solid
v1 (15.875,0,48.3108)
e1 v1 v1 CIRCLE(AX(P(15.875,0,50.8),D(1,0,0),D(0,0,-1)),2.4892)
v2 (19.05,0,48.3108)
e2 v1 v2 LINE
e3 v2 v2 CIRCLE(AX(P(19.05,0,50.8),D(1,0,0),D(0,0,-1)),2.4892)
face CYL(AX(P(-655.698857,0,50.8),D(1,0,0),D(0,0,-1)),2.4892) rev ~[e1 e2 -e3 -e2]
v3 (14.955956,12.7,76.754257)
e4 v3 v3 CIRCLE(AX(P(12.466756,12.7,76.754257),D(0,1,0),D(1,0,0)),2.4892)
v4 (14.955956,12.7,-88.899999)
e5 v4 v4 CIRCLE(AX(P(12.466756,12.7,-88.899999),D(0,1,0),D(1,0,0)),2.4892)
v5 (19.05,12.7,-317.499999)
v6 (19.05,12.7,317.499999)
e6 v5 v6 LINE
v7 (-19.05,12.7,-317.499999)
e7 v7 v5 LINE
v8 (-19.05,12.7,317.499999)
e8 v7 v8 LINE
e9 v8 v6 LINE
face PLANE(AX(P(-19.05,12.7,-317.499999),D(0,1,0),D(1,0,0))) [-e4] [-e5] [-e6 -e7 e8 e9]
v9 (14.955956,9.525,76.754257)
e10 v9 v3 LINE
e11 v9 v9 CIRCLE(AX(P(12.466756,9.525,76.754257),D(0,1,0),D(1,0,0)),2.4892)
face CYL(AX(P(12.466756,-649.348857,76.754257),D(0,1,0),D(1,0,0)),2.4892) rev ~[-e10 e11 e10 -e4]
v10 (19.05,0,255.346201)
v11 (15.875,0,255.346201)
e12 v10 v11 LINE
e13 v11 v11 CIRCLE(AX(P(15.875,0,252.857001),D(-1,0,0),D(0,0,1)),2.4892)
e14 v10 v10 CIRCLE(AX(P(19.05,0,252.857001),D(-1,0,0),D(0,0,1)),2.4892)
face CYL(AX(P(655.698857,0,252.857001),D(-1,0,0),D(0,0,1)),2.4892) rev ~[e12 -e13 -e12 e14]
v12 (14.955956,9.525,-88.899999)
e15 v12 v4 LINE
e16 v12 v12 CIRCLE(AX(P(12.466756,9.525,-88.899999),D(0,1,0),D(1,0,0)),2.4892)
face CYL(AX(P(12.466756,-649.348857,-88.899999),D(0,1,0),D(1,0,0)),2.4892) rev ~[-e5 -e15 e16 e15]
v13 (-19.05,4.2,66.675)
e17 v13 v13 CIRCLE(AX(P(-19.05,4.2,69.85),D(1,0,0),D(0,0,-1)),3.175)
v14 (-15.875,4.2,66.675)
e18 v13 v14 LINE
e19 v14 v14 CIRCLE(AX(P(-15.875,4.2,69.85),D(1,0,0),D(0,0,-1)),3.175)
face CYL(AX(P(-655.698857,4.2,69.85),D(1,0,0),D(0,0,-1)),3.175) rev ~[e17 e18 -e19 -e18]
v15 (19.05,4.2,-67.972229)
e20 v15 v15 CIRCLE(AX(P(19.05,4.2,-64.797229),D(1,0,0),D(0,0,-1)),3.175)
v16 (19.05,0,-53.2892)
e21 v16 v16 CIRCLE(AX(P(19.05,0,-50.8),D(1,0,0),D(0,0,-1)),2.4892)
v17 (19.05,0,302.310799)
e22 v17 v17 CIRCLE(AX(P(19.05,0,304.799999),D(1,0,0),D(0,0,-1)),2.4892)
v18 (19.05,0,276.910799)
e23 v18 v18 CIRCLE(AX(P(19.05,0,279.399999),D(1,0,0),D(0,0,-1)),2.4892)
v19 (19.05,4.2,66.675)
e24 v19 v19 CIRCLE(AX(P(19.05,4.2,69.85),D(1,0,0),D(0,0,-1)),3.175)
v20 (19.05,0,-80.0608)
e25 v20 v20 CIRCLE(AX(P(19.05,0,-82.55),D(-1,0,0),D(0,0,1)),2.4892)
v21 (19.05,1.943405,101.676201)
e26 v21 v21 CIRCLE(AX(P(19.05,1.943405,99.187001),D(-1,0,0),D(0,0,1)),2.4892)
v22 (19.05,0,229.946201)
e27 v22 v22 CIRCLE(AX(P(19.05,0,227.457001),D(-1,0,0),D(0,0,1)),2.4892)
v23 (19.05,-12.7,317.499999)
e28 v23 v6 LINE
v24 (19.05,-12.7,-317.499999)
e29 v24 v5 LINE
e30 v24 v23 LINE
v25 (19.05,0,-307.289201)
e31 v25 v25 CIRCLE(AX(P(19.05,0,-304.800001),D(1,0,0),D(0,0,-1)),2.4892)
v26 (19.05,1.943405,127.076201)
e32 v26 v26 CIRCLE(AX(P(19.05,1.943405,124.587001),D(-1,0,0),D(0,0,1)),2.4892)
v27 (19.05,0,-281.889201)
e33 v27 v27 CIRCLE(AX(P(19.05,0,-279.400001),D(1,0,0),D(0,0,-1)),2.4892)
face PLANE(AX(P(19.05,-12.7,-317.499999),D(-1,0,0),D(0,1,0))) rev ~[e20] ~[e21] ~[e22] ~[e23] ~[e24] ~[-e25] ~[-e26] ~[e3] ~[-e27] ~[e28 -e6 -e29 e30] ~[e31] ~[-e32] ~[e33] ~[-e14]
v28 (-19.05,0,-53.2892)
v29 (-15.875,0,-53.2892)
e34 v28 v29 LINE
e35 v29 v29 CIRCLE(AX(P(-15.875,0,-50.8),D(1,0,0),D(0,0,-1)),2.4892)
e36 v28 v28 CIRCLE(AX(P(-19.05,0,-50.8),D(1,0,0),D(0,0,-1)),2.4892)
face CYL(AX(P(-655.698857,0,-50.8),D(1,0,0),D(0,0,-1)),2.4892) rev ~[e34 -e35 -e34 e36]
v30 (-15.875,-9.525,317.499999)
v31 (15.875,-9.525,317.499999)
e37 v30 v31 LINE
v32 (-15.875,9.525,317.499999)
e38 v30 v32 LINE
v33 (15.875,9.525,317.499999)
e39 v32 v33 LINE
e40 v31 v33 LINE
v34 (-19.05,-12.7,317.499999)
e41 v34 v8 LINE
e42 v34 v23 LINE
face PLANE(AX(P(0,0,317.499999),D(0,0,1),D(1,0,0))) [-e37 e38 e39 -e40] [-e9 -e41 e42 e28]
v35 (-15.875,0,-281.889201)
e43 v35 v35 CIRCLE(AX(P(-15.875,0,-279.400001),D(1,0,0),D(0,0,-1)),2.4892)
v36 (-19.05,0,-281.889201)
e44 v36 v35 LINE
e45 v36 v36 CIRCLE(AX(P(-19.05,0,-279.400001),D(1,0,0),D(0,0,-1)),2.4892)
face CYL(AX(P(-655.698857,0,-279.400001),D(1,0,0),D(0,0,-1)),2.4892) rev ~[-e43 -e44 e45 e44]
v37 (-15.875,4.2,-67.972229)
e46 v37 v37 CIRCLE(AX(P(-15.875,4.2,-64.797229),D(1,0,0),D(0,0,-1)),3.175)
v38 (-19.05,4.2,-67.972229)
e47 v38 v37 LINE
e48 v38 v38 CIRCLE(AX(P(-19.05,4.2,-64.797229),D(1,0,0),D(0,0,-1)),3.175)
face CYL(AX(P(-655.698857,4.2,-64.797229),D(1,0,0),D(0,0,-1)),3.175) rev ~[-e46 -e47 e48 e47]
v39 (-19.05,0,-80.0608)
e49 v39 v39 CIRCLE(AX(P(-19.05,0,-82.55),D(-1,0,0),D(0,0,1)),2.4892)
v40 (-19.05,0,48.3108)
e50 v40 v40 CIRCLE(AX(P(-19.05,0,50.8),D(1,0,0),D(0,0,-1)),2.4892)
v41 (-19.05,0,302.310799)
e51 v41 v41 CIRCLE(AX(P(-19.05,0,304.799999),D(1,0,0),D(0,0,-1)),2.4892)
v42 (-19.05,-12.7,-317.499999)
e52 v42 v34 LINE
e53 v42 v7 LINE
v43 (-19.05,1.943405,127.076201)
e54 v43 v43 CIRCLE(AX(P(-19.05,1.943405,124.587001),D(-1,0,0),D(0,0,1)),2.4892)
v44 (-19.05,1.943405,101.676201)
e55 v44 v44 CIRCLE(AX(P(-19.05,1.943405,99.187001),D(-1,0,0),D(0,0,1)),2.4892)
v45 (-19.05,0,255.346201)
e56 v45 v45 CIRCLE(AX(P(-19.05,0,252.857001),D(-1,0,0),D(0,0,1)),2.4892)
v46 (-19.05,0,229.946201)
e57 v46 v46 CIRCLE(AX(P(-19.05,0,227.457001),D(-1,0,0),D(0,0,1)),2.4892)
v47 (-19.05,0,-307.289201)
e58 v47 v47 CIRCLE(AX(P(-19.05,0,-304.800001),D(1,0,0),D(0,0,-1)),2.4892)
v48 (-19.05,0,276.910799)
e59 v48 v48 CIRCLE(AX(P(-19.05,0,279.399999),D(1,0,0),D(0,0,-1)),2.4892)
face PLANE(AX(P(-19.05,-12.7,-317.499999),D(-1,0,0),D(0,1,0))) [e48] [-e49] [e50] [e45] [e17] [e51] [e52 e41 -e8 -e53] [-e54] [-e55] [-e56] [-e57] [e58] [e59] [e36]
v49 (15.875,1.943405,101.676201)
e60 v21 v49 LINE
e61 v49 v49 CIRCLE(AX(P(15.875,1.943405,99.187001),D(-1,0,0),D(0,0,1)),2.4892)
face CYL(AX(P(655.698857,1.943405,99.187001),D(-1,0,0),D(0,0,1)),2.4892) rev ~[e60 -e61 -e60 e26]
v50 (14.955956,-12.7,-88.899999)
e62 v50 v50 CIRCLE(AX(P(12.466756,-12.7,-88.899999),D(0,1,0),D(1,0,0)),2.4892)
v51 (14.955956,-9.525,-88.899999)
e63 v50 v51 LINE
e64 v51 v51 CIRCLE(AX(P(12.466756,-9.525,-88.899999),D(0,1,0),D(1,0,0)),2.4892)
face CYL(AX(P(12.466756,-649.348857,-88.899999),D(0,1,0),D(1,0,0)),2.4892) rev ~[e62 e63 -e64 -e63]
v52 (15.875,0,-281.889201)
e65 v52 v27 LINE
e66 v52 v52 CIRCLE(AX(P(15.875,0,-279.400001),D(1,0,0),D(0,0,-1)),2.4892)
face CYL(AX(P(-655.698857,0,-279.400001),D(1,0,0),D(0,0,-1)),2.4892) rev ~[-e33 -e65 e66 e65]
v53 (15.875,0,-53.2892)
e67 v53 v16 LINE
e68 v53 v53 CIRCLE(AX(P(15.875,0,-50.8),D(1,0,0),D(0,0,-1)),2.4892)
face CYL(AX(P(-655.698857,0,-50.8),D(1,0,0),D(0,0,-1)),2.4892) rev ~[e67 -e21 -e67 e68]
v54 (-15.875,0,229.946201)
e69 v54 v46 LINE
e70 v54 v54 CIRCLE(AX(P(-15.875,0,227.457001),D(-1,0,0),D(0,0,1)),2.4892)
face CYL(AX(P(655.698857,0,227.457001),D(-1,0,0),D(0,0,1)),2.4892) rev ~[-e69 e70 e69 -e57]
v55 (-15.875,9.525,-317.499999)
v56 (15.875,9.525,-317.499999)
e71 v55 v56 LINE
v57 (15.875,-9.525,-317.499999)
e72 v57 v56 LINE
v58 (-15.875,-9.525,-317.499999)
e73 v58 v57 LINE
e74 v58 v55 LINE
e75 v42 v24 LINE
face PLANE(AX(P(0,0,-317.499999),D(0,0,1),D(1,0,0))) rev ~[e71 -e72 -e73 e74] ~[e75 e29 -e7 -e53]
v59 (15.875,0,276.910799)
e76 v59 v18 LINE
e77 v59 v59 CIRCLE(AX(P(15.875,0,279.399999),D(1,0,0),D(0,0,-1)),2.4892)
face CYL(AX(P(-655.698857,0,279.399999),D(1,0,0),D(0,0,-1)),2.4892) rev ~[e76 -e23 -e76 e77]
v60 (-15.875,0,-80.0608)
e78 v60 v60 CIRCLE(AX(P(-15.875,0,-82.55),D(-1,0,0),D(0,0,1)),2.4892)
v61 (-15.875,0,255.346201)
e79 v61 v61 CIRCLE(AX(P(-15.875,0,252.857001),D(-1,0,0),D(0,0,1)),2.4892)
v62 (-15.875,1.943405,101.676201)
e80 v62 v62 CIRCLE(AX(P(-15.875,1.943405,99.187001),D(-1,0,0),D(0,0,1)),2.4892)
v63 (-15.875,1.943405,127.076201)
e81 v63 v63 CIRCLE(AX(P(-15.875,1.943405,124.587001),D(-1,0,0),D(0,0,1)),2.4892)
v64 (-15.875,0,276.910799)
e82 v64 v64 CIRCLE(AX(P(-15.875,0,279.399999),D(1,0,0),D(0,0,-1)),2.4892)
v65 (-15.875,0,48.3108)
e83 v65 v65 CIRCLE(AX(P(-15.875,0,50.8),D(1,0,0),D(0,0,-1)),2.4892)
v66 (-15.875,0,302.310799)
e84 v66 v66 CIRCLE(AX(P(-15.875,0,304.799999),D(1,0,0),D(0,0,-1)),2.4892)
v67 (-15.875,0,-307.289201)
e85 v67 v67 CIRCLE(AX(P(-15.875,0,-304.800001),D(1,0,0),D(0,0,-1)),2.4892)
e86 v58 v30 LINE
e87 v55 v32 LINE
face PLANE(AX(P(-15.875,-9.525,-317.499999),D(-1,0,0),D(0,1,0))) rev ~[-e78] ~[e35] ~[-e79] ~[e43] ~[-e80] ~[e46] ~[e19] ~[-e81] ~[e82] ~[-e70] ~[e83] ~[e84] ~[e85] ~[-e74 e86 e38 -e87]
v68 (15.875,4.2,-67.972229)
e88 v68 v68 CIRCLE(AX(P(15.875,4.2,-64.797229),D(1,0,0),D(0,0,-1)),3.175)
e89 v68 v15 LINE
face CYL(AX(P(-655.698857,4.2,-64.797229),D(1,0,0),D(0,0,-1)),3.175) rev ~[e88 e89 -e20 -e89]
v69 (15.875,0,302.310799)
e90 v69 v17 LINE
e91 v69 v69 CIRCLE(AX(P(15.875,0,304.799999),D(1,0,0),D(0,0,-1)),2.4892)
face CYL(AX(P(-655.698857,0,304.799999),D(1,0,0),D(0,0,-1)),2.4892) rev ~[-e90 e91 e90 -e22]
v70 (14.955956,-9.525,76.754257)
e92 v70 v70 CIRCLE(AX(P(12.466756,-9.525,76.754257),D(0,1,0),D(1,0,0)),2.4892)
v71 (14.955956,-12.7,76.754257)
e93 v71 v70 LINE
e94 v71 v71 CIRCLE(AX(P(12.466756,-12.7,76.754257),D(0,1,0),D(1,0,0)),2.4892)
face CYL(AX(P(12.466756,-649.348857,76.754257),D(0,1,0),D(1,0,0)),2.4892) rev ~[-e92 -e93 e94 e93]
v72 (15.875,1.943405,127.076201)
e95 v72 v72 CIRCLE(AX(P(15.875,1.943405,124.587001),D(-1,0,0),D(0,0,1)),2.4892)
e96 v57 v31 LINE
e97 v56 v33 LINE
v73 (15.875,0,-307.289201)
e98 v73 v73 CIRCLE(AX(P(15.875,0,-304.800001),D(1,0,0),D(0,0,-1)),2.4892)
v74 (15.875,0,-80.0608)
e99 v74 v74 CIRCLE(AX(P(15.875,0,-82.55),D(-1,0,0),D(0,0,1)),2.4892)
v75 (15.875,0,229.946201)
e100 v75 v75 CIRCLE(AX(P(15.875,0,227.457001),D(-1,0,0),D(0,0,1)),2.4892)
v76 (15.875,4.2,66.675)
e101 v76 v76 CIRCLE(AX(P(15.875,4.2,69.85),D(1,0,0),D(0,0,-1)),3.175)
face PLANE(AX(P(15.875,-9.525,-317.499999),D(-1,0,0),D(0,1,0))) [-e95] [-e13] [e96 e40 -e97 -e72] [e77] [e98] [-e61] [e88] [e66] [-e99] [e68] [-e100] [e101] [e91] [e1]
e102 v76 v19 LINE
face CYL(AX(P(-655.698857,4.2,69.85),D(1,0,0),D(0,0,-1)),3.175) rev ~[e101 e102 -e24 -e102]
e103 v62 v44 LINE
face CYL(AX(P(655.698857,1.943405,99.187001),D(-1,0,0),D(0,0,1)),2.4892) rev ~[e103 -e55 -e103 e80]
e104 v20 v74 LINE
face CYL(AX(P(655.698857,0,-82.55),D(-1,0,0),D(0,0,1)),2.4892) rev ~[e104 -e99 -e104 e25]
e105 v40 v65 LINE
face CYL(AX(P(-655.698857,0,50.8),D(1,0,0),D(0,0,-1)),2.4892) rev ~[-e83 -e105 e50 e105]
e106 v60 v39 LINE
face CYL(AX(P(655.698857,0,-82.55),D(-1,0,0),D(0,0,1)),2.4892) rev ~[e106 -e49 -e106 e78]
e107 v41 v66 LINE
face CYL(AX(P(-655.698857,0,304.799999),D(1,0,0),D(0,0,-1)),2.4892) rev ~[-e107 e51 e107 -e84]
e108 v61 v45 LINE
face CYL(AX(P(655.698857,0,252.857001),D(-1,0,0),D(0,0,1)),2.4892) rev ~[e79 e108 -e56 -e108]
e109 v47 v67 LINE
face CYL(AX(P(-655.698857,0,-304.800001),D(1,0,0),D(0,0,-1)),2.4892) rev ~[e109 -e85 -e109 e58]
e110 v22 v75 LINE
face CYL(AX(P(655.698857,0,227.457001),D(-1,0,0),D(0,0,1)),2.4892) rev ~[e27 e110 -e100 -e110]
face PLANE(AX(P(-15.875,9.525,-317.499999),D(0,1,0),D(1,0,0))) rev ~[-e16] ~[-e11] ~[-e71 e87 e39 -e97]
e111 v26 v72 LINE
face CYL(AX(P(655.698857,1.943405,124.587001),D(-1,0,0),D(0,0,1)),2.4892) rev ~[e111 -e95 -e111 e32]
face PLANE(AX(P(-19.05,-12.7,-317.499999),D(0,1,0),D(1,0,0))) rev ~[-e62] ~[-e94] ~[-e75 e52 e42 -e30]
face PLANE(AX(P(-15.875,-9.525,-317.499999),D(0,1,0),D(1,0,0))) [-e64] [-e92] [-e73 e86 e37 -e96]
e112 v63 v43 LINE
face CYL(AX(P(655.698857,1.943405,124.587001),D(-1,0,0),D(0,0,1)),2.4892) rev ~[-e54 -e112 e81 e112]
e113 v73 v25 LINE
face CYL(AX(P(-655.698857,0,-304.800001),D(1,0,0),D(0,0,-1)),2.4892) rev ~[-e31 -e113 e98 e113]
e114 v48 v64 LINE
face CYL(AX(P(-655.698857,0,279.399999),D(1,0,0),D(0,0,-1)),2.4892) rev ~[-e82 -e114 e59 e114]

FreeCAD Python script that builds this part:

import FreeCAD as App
import Part
import Sketcher
Q = App.Units.Quantity

doc = App.newDocument("Part")
body = doc.addObject("PartDesign::Body", "Body")

sketch1 = body.newObject("Sketcher::SketchObject", "Sketch")
sketch1.AttachmentSupport = (doc.getObject("XY_Plane"), [""])
sketch1.MapMode = "FlatFace"
sketch1.addGeometry([
    Part.LineSegment(App.Vector(-19.05, 12.7, 0), App.Vector(-19.05, -12.7, 0)),
    Part.LineSegment(App.Vector(-19.05, -12.7, 0), App.Vector(19.05, -12.7, 0)),
    Part.LineSegment(App.Vector(19.05, -12.7, 0), App.Vector(19.05, 12.7, 0)),
    Part.LineSegment(App.Vector(19.05, 12.7, 0), App.Vector(-19.05, 12.7, 0)),
    Part.LineSegment(App.Vector(15.875, -9.525, 0), App.Vector(-15.875, -9.525, 0)),
    Part.LineSegment(App.Vector(-15.875, -9.525, 0), App.Vector(-15.875, 9.525, 0)),
    Part.LineSegment(App.Vector(-15.875, 9.525, 0), App.Vector(15.875, 9.525, 0)),
    Part.LineSegment(App.Vector(15.875, 9.525, 0), App.Vector(15.875, -9.525, 0)),
], False)
sketch1.addConstraint([
    Sketcher.Constraint("Coincident", 0, 2, 1, 1),
    Sketcher.Constraint("Coincident", 1, 2, 2, 1),
    Sketcher.Constraint("Coincident", 2, 2, 3, 1),
    Sketcher.Constraint("Coincident", 3, 2, 0, 1),
    Sketcher.Constraint("Coincident", 4, 2, 5, 1),
    Sketcher.Constraint("Coincident", 5, 2, 6, 1),
    Sketcher.Constraint("Coincident", 6, 2, 7, 1),
    Sketcher.Constraint("Coincident", 7, 2, 4, 1),
    Sketcher.Constraint("Vertical", 0),
    Sketcher.Constraint("Horizontal", 1),
    Sketcher.Constraint("Vertical", 2),
    Sketcher.Constraint("Horizontal", 3),
    Sketcher.Constraint("Horizontal", 4),
    Sketcher.Constraint("Vertical", 5),
    Sketcher.Constraint("Horizontal", 6),
    Sketcher.Constraint("Vertical", 7),
    Sketcher.Constraint("Symmetric", 0, 2, 2, 2, -1, 1),
    Sketcher.Constraint("Symmetric", 4, 2, 6, 2, -1, 1),
    Sketcher.Constraint("DistanceY", 0, 2, 0, 1, Q("1 in")),
    Sketcher.Constraint("DistanceX", 1, 1, 1, 2, Q("1.5 in")),
    Sketcher.Constraint("DistanceX", 4, 2, 4, 1, Q("1.25 in")),
    Sketcher.Constraint("DistanceY", 5, 1, 5, 2, Q("0.75 in")),
])
pad1 = body.newObject("PartDesign::Pad", "Pad")
pad1.Profile = sketch1
pad1.Type = "TwoLengths"
pad1.Length = Q("12.5 in")
pad1.Length2 = Q("12.5 in")

sketch2 = body.newObject("Sketcher::SketchObject", "Sketch001")
sketch2.AttachmentSupport = (doc.getObject("YZ_Plane"), [""])
sketch2.MapMode = "FlatFace"
sketch2.AttachmentOffset = App.Placement(App.Vector(0, 0, -0.75 * 25.4), App.Rotation())
sketch2.addGeometry([
    Part.Circle(App.Vector(0, -304.800001, 0), App.Vector(0, 0, 1), 2.4892),
    Part.Circle(App.Vector(0, -279.400001, 0), App.Vector(0, 0, 1), 2.4892),
    Part.Circle(App.Vector(0, 279.399999, 0), App.Vector(0, 0, 1), 2.4892),
    Part.Circle(App.Vector(0, 304.799999, 0), App.Vector(0, 0, 1), 2.4892),
], False)
sketch2.addConstraint([
    Sketcher.Constraint("Equal", 0, 1),
    Sketcher.Constraint("Equal", 1, 2),
    Sketcher.Constraint("Equal", 2, 3),
    Sketcher.Constraint("Symmetric", 1, 3, 2, 3, -1, 1),
    Sketcher.Constraint("Symmetric", 0, 3, 3, 3, -1, 1),
    Sketcher.Constraint("PointOnObject", 0, 3, -2),
    Sketcher.Constraint("PointOnObject", 1, 3, -2),
    Sketcher.Constraint("Diameter", 0, Q("0.196 in")),
    Sketcher.Constraint("DistanceY", 0, 3, -1, 1, Q("12 in")),
    Sketcher.Constraint("DistanceY", 1, 3, -1, 1, Q("11 in")),
])
doc.recompute()
hole = body.newObject("PartDesign::Hole", "Hole")
hole.Profile = sketch2
hole.ThreadType = "None"
hole.Diameter = Q("0.196 in")
hole.DepthType = "ThroughAll"
hole.Reversed = True

sketch3 = body.newObject("Sketcher::SketchObject", "Sketch002")
sketch3.AttachmentSupport = (doc.getObject("YZ_Plane"), [""])
sketch3.MapMode = "FlatFace"
sketch3.AttachmentOffset = App.Placement(App.Vector(0, 0, 0.75 * 25.4), App.Rotation())
sketch3.addGeometry([
    Part.Circle(App.Vector(0, 252.857001, 0), App.Vector(0, 0, 1), 2.4892),
    Part.Circle(App.Vector(0, 227.457001, 0), App.Vector(0, 0, 1), 2.4892),
    Part.Circle(App.Vector(1.943405, 124.587001, 0), App.Vector(0, 0, 1), 2.4892),
    Part.Circle(App.Vector(1.943405, 99.187001, 0), App.Vector(0, 0, 1), 2.4892),
], False)
sketch3.addConstraint([
    Sketcher.Constraint("Equal", 0, 1),
    Sketcher.Constraint("Equal", 1, 2),
    Sketcher.Constraint("Equal", 2, 3),
    Sketcher.Constraint("PointOnObject", 0, 3, -2),
    Sketcher.Constraint("PointOnObject", 1, 3, -2),
    Sketcher.Constraint("Vertical", 2, 3, 3, 3),
    Sketcher.Constraint("Diameter", 0, Q("0.196 in")),
    Sketcher.Constraint("DistanceY", 1, 3, 0, 3, Q("1 in")),
    Sketcher.Constraint("DistanceY", 3, 3, 2, 3, Q("1 in")),
    Sketcher.Constraint("DistanceY", 2, 3, 1, 3, Q("4.05 in")),
    Sketcher.Constraint("DistanceY", -1, 1, 0, 3, Q("9.955 in")),
    Sketcher.Constraint("DistanceX", -1, 1, 2, 3, Q("1.943405 mm")),
])
doc.recompute()
hole2 = body.newObject("PartDesign::Hole", "Hole001")
hole2.Profile = sketch3
hole2.ThreadType = "None"
hole2.Diameter = Q("0.196 in")
hole2.DepthType = "ThroughAll"

sketch4 = body.newObject("Sketcher::SketchObject", "Sketch003")
sketch4.AttachmentSupport = (doc.getObject("YZ_Plane"), [""])
sketch4.MapMode = "FlatFace"
sketch4.AttachmentOffset = App.Placement(App.Vector(0, 0, -0.75 * 25.4), App.Rotation())
sketch4.addGeometry([
    Part.Circle(App.Vector(0, -50.8, 0), App.Vector(0, 0, 1), 2.4892),
    Part.Circle(App.Vector(0, 50.8, 0), App.Vector(0, 0, 1), 2.4892),
], False)
sketch4.addConstraint([
    Sketcher.Constraint("Equal", 0, 1),
    Sketcher.Constraint("Symmetric", 0, 3, 1, 3, -1, 1),
    Sketcher.Constraint("PointOnObject", 0, 3, -2),
    Sketcher.Constraint("Diameter", 0, Q("0.196 in")),
    Sketcher.Constraint("DistanceY", 0, 3, -1, 1, Q("2 in")),
])
doc.recompute()
hole3 = body.newObject("PartDesign::Hole", "Hole002")
hole3.Profile = sketch4
hole3.ThreadType = "None"
hole3.Diameter = Q("0.196 in")
hole3.DepthType = "ThroughAll"
hole3.Reversed = True

sketch5 = body.newObject("Sketcher::SketchObject", "Sketch004")
sketch5.AttachmentSupport = (doc.getObject("YZ_Plane"), [""])
sketch5.MapMode = "FlatFace"
sketch5.AttachmentOffset = App.Placement(App.Vector(0, 0, 0.75 * 25.4), App.Rotation())
sketch5.addGeometry(Part.Circle(App.Vector(0, -82.55, 0), App.Vector(0, 0, 1), 2.4892), False)
sketch5.addConstraint([
    Sketcher.Constraint("PointOnObject", 0, 3, -2),
    Sketcher.Constraint("Diameter", 0, Q("0.196 in")),
    Sketcher.Constraint("DistanceY", 0, 3, -1, 1, Q("3.25 in")),
])
doc.recompute()
hole4 = body.newObject("PartDesign::Hole", "Hole003")
hole4.Profile = sketch5
hole4.ThreadType = "None"
hole4.Diameter = Q("0.196 in")
hole4.DepthType = "ThroughAll"

sketch6 = body.newObject("Sketcher::SketchObject", "Sketch005")
sketch6.AttachmentSupport = (doc.getObject("XZ_Plane"), [""])
sketch6.MapMode = "FlatFace"
sketch6.AttachmentOffset = App.Placement(App.Vector(0, 0, 0.5 * 25.4), App.Rotation())
sketch6.addGeometry([
    Part.Circle(App.Vector(12.466756, 76.754257, 0), App.Vector(0, 0, 1), 2.4892),
    Part.Circle(App.Vector(12.466756, -88.899999, 0), App.Vector(0, 0, 1), 2.4892),
], False)
sketch6.addConstraint([
    Sketcher.Constraint("Equal", 0, 1),
    Sketcher.Constraint("Vertical", 0, 3, 1, 3),
    Sketcher.Constraint("Diameter", 0, Q("0.196 in")),
    Sketcher.Constraint("DistanceY", 1, 3, -1, 1, Q("3.5 in")),
    Sketcher.Constraint("DistanceX", -1, 1, 0, 3, Q("12.466756 mm")),
    Sketcher.Constraint("DistanceY", -1, 1, 0, 3, Q("76.754257 mm")),
])
doc.recompute()
hole5 = body.newObject("PartDesign::Hole", "Hole004")
hole5.Profile = sketch6
hole5.ThreadType = "None"
hole5.Diameter = Q("0.196 in")
hole5.DepthType = "ThroughAll"

sketch7 = body.newObject("Sketcher::SketchObject", "Sketch006")
sketch7.AttachmentSupport = (doc.getObject("YZ_Plane"), [""])
sketch7.MapMode = "FlatFace"
sketch7.AttachmentOffset = App.Placement(App.Vector(0, 0, -0.75 * 25.4), App.Rotation())
sketch7.addGeometry([
    Part.Circle(App.Vector(4.2, 69.85, 0), App.Vector(0, 0, 1), 3.175),
    Part.Circle(App.Vector(4.2, -64.797229, 0), App.Vector(0, 0, 1), 3.175),
], False)
sketch7.addConstraint([
    Sketcher.Constraint("Equal", 0, 1),
    Sketcher.Constraint("Vertical", 0, 3, 1, 3),
    Sketcher.Constraint("Diameter", 0, Q("0.25 in")),
    Sketcher.Constraint("DistanceY", -1, 1, 0, 3, Q("2.75 in")),
    Sketcher.Constraint("DistanceX", -1, 1, 0, 3, Q("4.2 mm")),
    Sketcher.Constraint("DistanceY", 1, 3, -1, 1, Q("64.797229 mm")),
])
doc.recompute()
hole6 = body.newObject("PartDesign::Hole", "Hole005")
hole6.Profile = sketch7
hole6.ThreadType = "None"
hole6.Diameter = Q("0.25 in")
hole6.DepthType = "ThroughAll"
hole6.Reversed = True

doc.recompute()
